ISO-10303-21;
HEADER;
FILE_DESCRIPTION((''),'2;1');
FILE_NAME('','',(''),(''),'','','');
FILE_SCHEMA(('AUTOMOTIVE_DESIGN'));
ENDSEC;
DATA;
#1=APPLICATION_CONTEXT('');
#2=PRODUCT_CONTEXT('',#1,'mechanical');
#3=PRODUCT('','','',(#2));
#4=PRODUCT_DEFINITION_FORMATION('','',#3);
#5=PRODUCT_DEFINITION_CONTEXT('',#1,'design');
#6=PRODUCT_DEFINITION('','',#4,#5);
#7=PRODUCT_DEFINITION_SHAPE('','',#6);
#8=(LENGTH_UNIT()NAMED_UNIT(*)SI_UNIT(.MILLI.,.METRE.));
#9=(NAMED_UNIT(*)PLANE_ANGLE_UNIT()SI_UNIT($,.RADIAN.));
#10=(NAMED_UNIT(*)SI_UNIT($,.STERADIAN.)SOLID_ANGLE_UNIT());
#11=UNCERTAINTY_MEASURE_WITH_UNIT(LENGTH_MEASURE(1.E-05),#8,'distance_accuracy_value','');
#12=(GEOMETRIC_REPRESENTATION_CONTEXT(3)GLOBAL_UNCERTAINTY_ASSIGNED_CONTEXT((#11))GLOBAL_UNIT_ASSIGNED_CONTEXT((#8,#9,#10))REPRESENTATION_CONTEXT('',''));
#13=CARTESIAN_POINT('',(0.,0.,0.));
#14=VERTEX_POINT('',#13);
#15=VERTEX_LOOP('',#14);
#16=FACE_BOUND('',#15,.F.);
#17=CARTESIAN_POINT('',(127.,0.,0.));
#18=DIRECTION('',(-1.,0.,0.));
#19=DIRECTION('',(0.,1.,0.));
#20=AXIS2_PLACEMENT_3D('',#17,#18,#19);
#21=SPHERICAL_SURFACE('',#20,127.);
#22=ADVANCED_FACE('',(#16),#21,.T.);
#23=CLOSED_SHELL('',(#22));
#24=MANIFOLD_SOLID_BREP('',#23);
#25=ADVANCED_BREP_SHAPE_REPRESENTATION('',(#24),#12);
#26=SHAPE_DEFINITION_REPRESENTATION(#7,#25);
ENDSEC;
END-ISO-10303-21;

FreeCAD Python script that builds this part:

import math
import FreeCAD as App
import Part
import Sketcher

V = App.Vector
Q = App.Units.Quantity

doc = App.newDocument("Part")
params = doc.addObject("Spreadsheet::Sheet", "Params")
for row, (alias, value) in enumerate([
    ("sketch1_radius", "5 in"),
    ("revolution_angle", "360 deg"),
], start=1):
    params.set(f"A{row}", alias)
    params.set(f"B{row}", "=" + value)
    params.setAlias(f"B{row}", alias)

body = doc.addObject("PartDesign::Body", "Body")

# Sketch on XY plane
sketch1 = body.newObject("Sketcher::SketchObject", "Sketch")
sketch1.AttachmentSupport = (doc.getObject("XY_Plane"), [""])
sketch1.MapMode = "FlatFace"
sketch1.addGeometry([
    Part.ArcOfCircle(Part.Circle(V(127, 0, 0), V(0, 0, 1), 127), math.radians(0), math.radians(180)),
    Part.LineSegment(V(0, 0, 0), V(254, 0, 0)),
], False)
sketch1.addConstraint([
    Sketcher.Constraint("Coincident", 0, 1, 1, 2),
    Sketcher.Constraint("Coincident", 1, 1, 0, 2),
    Sketcher.Constraint("Horizontal", 1),
    Sketcher.Constraint("Coincident", 1, 1, -1, 1),
    Sketcher.Constraint("PointOnObject", 0, 3, -1),
    Sketcher.Constraint("Radius", 0, Q("5 in")),
])
sketch1.setExpression("Constraints[5]", "Params.sketch1_radius")
revolution = body.newObject("PartDesign::Revolution", "Revolution")
revolution.Profile = sketch1
revolution.ReferenceAxis = (sketch1, ["H_Axis"])
revolution.setExpression("Angle", "Params.revolution_angle")

doc.recompute()
